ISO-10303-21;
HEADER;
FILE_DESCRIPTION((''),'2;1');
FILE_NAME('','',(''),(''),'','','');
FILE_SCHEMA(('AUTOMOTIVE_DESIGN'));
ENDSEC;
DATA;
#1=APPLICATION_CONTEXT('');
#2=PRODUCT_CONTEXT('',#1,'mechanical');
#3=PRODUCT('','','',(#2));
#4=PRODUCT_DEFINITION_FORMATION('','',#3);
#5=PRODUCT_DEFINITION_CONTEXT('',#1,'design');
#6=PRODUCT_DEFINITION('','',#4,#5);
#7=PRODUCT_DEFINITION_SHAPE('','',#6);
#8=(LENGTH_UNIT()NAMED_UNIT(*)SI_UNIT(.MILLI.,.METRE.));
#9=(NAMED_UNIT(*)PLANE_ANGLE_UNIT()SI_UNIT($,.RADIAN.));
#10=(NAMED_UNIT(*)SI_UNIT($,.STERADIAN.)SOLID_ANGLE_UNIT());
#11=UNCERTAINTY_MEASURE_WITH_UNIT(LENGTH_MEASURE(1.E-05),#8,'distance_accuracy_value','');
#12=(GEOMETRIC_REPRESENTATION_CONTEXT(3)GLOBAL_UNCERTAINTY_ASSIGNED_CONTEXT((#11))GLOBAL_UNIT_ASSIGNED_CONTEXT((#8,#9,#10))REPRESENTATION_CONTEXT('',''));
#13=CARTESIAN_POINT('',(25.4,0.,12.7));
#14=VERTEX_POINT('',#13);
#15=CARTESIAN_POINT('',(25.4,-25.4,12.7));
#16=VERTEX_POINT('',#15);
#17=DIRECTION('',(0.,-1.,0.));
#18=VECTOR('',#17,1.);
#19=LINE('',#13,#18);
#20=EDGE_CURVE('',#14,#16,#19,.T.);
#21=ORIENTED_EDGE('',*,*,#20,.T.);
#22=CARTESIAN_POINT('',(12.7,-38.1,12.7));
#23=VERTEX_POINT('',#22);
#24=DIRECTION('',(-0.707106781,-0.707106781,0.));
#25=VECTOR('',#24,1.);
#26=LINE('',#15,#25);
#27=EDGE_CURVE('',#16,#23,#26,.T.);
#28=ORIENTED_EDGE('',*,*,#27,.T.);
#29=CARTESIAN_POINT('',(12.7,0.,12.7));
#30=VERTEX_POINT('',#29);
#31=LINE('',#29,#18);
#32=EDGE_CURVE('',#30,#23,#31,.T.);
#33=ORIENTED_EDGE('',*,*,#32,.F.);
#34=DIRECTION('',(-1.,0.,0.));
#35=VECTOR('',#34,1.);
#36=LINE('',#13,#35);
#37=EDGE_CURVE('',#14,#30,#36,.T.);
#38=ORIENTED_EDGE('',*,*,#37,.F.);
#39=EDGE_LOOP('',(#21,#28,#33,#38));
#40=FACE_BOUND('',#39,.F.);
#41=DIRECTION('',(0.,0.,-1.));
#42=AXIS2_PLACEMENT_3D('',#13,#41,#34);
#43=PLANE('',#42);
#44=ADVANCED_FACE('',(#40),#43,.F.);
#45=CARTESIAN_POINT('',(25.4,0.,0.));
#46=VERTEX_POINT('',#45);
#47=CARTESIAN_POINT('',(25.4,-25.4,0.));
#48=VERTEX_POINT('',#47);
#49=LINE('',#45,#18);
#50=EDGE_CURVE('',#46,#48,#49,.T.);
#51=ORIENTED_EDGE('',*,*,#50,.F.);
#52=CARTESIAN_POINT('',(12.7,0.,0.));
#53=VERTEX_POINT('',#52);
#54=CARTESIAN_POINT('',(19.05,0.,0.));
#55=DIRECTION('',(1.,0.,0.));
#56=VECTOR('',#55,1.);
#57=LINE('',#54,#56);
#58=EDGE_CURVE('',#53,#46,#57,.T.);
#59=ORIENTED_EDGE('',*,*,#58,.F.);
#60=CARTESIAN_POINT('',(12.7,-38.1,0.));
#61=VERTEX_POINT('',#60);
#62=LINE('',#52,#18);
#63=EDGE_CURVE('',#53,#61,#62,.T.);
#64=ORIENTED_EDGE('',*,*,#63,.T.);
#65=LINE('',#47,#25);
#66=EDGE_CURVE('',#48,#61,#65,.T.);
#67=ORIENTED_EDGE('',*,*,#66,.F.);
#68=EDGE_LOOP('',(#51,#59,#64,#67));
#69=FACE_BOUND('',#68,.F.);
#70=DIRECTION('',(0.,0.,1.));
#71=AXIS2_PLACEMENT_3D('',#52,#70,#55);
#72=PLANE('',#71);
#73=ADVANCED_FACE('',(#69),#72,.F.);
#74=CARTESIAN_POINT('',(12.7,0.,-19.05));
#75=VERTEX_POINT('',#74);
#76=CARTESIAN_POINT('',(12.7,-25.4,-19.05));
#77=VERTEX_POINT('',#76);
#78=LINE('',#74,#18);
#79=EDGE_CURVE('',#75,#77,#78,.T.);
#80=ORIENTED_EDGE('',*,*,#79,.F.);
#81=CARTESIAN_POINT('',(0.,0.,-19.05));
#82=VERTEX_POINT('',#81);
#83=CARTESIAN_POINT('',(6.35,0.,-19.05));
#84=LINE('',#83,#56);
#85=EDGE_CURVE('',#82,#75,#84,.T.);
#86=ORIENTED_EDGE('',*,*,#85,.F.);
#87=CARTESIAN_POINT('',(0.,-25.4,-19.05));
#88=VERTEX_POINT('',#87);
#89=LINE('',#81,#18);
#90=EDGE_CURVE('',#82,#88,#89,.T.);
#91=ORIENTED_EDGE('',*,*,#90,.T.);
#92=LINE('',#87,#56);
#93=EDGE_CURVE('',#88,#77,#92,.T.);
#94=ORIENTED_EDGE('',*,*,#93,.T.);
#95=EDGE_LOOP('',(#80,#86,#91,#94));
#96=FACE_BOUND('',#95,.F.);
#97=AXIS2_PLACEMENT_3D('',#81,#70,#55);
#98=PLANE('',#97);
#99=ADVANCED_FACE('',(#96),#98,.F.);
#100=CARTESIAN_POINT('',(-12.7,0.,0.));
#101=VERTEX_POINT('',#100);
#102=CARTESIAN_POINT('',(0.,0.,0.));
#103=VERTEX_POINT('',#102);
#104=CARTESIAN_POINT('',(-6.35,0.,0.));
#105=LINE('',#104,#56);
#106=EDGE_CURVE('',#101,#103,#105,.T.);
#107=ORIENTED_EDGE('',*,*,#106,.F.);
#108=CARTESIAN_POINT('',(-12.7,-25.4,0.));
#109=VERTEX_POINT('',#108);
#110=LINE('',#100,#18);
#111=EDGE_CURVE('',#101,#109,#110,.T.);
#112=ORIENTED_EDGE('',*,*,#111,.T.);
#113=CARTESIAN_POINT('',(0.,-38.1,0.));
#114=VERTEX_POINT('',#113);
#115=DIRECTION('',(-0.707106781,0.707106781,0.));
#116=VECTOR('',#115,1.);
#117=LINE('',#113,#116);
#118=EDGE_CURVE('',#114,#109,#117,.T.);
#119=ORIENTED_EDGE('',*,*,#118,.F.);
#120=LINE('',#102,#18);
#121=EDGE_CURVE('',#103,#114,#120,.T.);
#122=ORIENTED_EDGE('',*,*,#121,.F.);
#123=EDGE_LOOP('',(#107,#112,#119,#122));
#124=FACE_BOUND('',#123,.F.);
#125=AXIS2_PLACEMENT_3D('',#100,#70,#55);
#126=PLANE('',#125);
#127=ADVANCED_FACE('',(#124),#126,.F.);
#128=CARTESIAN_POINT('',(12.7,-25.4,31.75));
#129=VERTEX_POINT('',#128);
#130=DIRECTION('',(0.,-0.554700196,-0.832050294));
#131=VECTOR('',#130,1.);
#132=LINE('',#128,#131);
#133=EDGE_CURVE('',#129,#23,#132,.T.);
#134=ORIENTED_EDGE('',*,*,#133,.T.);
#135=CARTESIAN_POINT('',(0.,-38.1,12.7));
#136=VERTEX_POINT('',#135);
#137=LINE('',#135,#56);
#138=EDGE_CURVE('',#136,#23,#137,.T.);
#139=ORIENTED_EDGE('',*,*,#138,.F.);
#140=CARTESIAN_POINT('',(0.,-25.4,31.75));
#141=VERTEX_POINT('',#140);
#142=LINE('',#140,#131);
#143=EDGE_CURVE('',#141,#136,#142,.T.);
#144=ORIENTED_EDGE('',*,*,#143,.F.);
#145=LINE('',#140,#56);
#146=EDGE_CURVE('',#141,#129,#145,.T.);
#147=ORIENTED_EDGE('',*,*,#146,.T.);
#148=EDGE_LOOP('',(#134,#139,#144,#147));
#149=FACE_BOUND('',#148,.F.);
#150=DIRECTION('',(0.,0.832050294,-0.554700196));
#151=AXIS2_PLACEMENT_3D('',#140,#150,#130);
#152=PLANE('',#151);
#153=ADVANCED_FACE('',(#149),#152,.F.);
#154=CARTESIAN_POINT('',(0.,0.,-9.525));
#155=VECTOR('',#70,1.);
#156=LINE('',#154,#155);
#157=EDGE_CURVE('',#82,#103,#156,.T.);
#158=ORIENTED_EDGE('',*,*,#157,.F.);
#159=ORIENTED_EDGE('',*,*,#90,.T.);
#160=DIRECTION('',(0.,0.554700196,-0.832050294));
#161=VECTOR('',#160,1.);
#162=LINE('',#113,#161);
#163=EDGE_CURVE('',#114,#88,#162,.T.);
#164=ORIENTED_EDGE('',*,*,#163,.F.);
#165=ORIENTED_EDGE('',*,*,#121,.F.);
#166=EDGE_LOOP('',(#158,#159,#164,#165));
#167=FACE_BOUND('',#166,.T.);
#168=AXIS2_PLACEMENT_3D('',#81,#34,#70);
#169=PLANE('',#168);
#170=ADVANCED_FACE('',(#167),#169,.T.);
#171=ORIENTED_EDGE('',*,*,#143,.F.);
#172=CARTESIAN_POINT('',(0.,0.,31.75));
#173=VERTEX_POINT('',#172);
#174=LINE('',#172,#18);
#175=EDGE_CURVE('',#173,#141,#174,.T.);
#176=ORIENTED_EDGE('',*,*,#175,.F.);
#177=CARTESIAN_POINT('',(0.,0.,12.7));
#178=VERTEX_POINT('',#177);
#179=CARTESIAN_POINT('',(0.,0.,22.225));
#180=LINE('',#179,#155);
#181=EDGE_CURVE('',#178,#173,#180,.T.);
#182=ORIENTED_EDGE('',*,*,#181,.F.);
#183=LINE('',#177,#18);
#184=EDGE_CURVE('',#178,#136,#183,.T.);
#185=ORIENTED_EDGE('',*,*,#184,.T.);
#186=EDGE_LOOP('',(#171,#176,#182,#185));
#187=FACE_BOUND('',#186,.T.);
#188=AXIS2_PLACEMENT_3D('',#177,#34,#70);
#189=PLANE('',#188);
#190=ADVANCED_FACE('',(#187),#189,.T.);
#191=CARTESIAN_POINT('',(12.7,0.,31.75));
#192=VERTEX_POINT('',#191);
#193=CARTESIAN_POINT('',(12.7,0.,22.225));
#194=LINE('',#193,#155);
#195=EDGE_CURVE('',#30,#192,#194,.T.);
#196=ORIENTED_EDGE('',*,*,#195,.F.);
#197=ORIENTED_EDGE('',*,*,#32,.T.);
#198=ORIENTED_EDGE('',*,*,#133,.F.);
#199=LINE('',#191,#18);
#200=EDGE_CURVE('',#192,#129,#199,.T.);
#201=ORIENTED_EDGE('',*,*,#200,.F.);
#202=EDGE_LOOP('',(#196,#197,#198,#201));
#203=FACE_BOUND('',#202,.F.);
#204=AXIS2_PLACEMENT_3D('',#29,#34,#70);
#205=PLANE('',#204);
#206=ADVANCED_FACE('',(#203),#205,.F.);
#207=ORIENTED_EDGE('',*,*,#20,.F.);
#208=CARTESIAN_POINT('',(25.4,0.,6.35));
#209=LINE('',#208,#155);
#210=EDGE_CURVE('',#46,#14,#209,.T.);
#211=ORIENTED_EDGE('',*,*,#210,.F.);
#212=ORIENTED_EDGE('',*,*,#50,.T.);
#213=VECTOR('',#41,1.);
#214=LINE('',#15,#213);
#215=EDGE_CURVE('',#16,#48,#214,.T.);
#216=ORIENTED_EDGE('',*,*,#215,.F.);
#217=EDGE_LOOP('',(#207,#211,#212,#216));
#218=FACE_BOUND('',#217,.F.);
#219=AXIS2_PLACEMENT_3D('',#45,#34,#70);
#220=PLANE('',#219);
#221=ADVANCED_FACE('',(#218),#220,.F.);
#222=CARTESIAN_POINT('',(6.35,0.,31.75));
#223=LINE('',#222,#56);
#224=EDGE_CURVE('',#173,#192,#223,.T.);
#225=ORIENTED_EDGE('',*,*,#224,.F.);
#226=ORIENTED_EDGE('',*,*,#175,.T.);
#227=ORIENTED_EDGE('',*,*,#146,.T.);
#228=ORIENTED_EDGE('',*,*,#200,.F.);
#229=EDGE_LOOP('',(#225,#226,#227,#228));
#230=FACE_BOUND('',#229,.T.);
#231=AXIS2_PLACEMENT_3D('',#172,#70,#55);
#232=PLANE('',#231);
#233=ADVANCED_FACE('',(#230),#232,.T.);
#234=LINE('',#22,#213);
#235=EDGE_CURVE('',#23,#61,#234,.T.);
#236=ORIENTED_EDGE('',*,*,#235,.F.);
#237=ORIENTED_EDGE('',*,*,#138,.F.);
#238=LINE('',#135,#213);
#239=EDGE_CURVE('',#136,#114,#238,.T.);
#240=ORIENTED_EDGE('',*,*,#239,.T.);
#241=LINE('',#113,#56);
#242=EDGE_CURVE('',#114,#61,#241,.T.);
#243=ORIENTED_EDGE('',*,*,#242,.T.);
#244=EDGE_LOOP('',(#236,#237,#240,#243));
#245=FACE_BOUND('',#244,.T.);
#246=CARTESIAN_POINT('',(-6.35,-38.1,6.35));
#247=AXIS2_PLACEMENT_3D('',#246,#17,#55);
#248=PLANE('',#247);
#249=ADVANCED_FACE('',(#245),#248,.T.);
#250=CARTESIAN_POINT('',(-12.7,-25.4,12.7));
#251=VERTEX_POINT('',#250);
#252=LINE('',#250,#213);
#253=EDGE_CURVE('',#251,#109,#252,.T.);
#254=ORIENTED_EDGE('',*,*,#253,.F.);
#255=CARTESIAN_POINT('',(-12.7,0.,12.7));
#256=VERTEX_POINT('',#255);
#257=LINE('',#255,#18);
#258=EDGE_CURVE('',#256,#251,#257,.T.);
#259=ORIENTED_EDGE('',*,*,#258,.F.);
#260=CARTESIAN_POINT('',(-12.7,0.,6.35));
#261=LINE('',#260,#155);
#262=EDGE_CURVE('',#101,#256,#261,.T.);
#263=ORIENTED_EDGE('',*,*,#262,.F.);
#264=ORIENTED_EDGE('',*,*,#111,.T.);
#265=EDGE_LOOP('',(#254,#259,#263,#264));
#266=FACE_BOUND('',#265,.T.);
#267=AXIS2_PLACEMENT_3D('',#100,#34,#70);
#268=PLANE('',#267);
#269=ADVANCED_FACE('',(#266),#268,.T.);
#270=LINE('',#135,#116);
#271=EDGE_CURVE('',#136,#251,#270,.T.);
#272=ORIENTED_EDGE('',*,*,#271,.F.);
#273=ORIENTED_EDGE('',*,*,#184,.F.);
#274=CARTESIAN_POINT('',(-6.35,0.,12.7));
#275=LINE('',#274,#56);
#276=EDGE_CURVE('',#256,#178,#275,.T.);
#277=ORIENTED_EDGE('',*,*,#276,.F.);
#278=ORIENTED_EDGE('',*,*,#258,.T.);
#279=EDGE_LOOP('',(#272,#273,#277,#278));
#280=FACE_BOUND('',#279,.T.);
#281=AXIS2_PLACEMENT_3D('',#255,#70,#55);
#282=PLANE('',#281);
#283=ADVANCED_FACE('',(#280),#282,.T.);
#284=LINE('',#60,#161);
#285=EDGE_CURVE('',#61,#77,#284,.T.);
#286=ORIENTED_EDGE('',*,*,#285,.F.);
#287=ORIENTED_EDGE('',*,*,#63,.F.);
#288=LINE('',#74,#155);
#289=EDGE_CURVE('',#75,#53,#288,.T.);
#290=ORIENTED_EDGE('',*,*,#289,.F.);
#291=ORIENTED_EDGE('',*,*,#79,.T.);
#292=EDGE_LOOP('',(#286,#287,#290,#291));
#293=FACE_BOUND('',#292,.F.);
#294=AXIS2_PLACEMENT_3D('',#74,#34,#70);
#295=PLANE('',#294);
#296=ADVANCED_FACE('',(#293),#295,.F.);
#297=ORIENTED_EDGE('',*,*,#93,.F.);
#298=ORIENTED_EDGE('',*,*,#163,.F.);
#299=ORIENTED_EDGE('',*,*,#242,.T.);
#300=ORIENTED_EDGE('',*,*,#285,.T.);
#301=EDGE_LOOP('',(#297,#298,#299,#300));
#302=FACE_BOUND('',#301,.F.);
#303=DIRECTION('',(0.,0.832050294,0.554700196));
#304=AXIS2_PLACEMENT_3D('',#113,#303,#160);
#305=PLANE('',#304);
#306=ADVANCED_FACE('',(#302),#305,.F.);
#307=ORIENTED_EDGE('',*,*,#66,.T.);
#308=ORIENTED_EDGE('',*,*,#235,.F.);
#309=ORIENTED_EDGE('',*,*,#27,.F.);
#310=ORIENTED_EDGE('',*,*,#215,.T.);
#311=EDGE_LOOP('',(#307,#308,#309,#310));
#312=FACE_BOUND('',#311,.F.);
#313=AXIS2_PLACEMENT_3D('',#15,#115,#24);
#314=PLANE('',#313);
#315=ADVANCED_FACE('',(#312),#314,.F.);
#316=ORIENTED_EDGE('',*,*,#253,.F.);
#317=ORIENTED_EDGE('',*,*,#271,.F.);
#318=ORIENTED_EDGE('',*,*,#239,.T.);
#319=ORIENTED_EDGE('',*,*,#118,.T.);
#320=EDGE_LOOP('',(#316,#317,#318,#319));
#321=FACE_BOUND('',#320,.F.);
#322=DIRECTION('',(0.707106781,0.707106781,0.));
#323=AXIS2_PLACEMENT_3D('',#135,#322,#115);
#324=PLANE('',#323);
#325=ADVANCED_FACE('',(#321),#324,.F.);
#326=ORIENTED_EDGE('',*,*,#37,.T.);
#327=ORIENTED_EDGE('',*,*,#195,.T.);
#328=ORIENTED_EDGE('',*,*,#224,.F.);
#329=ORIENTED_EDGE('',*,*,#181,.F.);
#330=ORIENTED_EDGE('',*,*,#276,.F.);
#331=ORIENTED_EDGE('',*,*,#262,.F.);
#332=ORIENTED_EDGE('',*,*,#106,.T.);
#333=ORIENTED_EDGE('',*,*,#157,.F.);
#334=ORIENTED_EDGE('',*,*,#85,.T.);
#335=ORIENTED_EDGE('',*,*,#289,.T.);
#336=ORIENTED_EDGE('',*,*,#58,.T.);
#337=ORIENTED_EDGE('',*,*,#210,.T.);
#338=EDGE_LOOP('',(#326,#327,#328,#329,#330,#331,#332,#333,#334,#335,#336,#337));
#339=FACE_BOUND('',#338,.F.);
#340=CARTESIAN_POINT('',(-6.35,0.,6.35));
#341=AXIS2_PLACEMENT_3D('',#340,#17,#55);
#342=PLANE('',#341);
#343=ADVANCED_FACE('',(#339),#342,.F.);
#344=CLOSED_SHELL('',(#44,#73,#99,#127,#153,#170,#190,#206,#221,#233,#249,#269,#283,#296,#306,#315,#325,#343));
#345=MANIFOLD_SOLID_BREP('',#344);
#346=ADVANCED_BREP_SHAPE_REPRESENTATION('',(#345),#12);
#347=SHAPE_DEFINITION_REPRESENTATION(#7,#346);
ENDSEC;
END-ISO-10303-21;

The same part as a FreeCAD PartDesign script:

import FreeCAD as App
import Part
import Sketcher
Q = App.Units.Quantity

doc = App.newDocument("Part")
body = doc.addObject("PartDesign::Body", "Body")

# Sketch on XZ plane
sketch1 = body.newObject("Sketcher::SketchObject", "Sketch")
sketch1.AttachmentSupport = (doc.getObject("XZ_Plane"), [""])
sketch1.MapMode = "FlatFace"
sketch1.addGeometry([
    Part.LineSegment(App.Vector(-13, 13, 0), App.Vector(-13, 0, 0)),
    Part.LineSegment(App.Vector(-13, 0, 0), App.Vector(0, 0, 0)),
    Part.LineSegment(App.Vector(0, 0, 0), App.Vector(0, 13, 0)),
    Part.LineSegment(App.Vector(0, 13, 0), App.Vector(-13, 13, 0)),
], False)
sketch1.addConstraint([
    Sketcher.Constraint("Coincident", 0, 2, 1, 1),
    Sketcher.Constraint("Coincident", 1, 2, 2, 1),
    Sketcher.Constraint("Coincident", 2, 2, 3, 1),
    Sketcher.Constraint("Coincident", 3, 2, 0, 1),
    Sketcher.Constraint("Vertical", 0),
    Sketcher.Constraint("Horizontal", 1),
    Sketcher.Constraint("Vertical", 2),
    Sketcher.Constraint("Horizontal", 3),
    Sketcher.Constraint("Coincident", 1, 2, -1, 1),
    Sketcher.Constraint("Equal", 3, 0),
    Sketcher.Constraint("DistanceX", 1, 1, 1, 2, Q("0.5 in")),
])
pad1 = body.newObject("PartDesign::Pad", "Pad")
pad1.Profile = sketch1
pad1.Length = Q("1.5 in")

# Sketch on XZ plane
sketch2 = body.newObject("Sketcher::SketchObject", "Sketch001")
sketch2.AttachmentSupport = (doc.getObject("XZ_Plane"), [""])
sketch2.MapMode = "FlatFace"
sketch2.addGeometry([
    Part.LineSegment(App.Vector(-13, 13, 0), App.Vector(-13, 0, 0)),  # 0
    Part.LineSegment(App.Vector(-13, 0, 0), App.Vector(0, 0, 0)),  # 1
    Part.LineSegment(App.Vector(0, 0, 0), App.Vector(0, -19, 0)),  # 2
    Part.LineSegment(App.Vector(0, -19, 0), App.Vector(13, -19, 0)),  # 3
    Part.LineSegment(App.Vector(13, -19, 0), App.Vector(13, 0, 0)),  # 4
    Part.LineSegment(App.Vector(13, 0, 0), App.Vector(25, 0, 0)),  # 5
    Part.LineSegment(App.Vector(25, 0, 0), App.Vector(25, 13, 0)),  # 6
    Part.LineSegment(App.Vector(25, 13, 0), App.Vector(13, 13, 0)),  # 7
    Part.LineSegment(App.Vector(13, 13, 0), App.Vector(13, 32, 0)),  # 8
    Part.LineSegment(App.Vector(13, 32, 0), App.Vector(0, 32, 0)),  # 9
    Part.LineSegment(App.Vector(0, 32, 0), App.Vector(0, 13, 0)),  # 10
    Part.LineSegment(App.Vector(0, 13, 0), App.Vector(-13, 13, 0)),  # 11
], False)
sketch2.addConstraint([
    Sketcher.Constraint("Coincident", 0, 2, 1, 1),
    Sketcher.Constraint("Coincident", 1, 2, 2, 1),
    Sketcher.Constraint("Coincident", 2, 2, 3, 1),
    Sketcher.Constraint("Coincident", 3, 2, 4, 1),
    Sketcher.Constraint("Coincident", 4, 2, 5, 1),
    Sketcher.Constraint("Coincident", 5, 2, 6, 1),
    Sketcher.Constraint("Coincident", 6, 2, 7, 1),
    Sketcher.Constraint("Coincident", 7, 2, 8, 1),
    Sketcher.Constraint("Coincident", 8, 2, 9, 1),
    Sketcher.Constraint("Coincident", 9, 2, 10, 1),
    Sketcher.Constraint("Coincident", 10, 2, 11, 1),
    Sketcher.Constraint("Coincident", 11, 2, 0, 1),
    Sketcher.Constraint("Vertical", 0),
    Sketcher.Constraint("Horizontal", 1),
    Sketcher.Constraint("Vertical", 2),
    Sketcher.Constraint("Horizontal", 3),
    Sketcher.Constraint("Vertical", 4),
    Sketcher.Constraint("Horizontal", 5),
    Sketcher.Constraint("Vertical", 6),
    Sketcher.Constraint("Horizontal", 7),
    Sketcher.Constraint("Vertical", 8),
    Sketcher.Constraint("Horizontal", 9),
    Sketcher.Constraint("Vertical", 10),
    Sketcher.Constraint("Horizontal", 11),
    Sketcher.Constraint("Coincident", 1, 2, -1, 1),
    Sketcher.Constraint("Symmetric", 0, 2, 4, 2, -1, 1),
    Sketcher.Constraint("Symmetric", 7, 2, 11, 2, -2),
    Sketcher.Constraint("PointOnObject", 9, 2, -2),
    Sketcher.Constraint("Equal", 3, 5),
    Sketcher.Constraint("Equal", 11, 0),
    Sketcher.Constraint("Equal", 4, 8),
    Sketcher.Constraint("DistanceX", 1, 1, 1, 2, Q("0.5 in")),
    Sketcher.Constraint("DistanceY", 2, 2, 2, 1, Q("0.75 in")),
])
pad2 = body.newObject("PartDesign::Pad", "Pad001")
pad2.Profile = sketch2
pad2.Length = Q("1.5 in")

# Sketch on XY plane
sketch3 = body.newObject("Sketcher::SketchObject", "Sketch002")
sketch3.AttachmentSupport = (doc.getObject("XY_Plane"), [""])
sketch3.MapMode = "FlatFace"
sketch3.AttachmentOffset = App.Placement(App.Vector(0, 0, 0.5 * 25.4), App.Rotation())
sketch3.addGeometry([
    Part.LineSegment(App.Vector(0, -38, 0), App.Vector(-13, -25, 0)),
    Part.LineSegment(App.Vector(-13, -25, 0), App.Vector(-13, -38, 0)),
    Part.LineSegment(App.Vector(-13, -38, 0), App.Vector(0, -38, 0)),
], False)
sketch3.addConstraint([
    Sketcher.Constraint("Coincident", 0, 2, 1, 1),
    Sketcher.Constraint("Coincident", 1, 2, 2, 1),
    Sketcher.Constraint("Coincident", 2, 2, 0, 1),
    Sketcher.Constraint("Vertical", 1),
    Sketcher.Constraint("Horizontal", 2),
    Sketcher.Constraint("PointOnObject", 2, 2, -2),
    Sketcher.Constraint("Equal", 2, 1),
    Sketcher.Constraint("DistanceX", 2, 1, 2, 2, Q("0.5 in")),
    Sketcher.Constraint("DistanceY", 0, 2, -1, 1, Q("1 in")),
])
pocket1 = body.newObject("PartDesign::Pocket", "Pocket")
pocket1.Profile = sketch3
pocket1.Length = Q("0.5 in")

# Sketch on XY plane
sketch4 = body.newObject("Sketcher::SketchObject", "Sketch003")
sketch4.AttachmentSupport = (doc.getObject("XY_Plane"), [""])
sketch4.MapMode = "FlatFace"
sketch4.AttachmentOffset = App.Placement(App.Vector(0, 0, 0.5 * 25.4), App.Rotation())
sketch4.addGeometry([
    Part.LineSegment(App.Vector(25, -25, 0), App.Vector(13, -38, 0)),
    Part.LineSegment(App.Vector(13, -38, 0), App.Vector(25, -38, 0)),
    Part.LineSegment(App.Vector(25, -38, 0), App.Vector(25, -25, 0)),
], False)
sketch4.addConstraint([
    Sketcher.Constraint("Coincident", 0, 2, 1, 1),
    Sketcher.Constraint("Coincident", 1, 2, 2, 1),
    Sketcher.Constraint("Coincident", 2, 2, 0, 1),
    Sketcher.Constraint("Horizontal", 1),
    Sketcher.Constraint("Vertical", 2),
    Sketcher.Constraint("Equal", 1, 2),
    Sketcher.Constraint("DistanceX", 1, 1, 1, 2, Q("0.5 in")),
    Sketcher.Constraint("DistanceX", -1, 1, 1, 2, Q("1 in")),
    Sketcher.Constraint("DistanceY", 2, 2, -1, 1, Q("1 in")),
])
pocket2 = body.newObject("PartDesign::Pocket", "Pocket001")
pocket2.Profile = sketch4
pocket2.Length = Q("0.5 in")

# Sketch on YZ plane
sketch5 = body.newObject("Sketcher::SketchObject", "Sketch004")
sketch5.AttachmentSupport = (doc.getObject("YZ_Plane"), [""])
sketch5.MapMode = "FlatFace"
sketch5.addGeometry([
    Part.LineSegment(App.Vector(-38, 32, 0), App.Vector(-25, 32, 0)),
    Part.LineSegment(App.Vector(-25, 32, 0), App.Vector(-38, 13, 0)),
    Part.LineSegment(App.Vector(-38, 13, 0), App.Vector(-38, 32, 0)),
], False)
sketch5.addConstraint([
    Sketcher.Constraint("Coincident", 0, 2, 1, 1),
    Sketcher.Constraint("Coincident", 1, 2, 2, 1),
    Sketcher.Constraint("Coincident", 2, 2, 0, 1),
    Sketcher.Constraint("Horizontal", 0),
    Sketcher.Constraint("Vertical", 2),
    Sketcher.Constraint("DistanceX", 0, 1, 0, 2, Q("0.5 in")),
    Sketcher.Constraint("DistanceX", 0, 2, -1, 1, Q("1 in")),
    Sketcher.Constraint("DistanceY", 2, 1, 2, 2, Q("0.75 in")),
    Sketcher.Constraint("DistanceY", -1, 1, 1, 2, Q("0.5 in")),
])
pocket3 = body.newObject("PartDesign::Pocket", "Pocket002")
pocket3.Profile = sketch5
pocket3.Length = Q("0.5 in")
pocket3.Reversed = True

# Sketch on YZ plane
sketch6 = body.newObject("Sketcher::SketchObject", "Sketch005")
sketch6.AttachmentSupport = (doc.getObject("YZ_Plane"), [""])
sketch6.MapMode = "FlatFace"
sketch6.addGeometry([
    Part.LineSegment(App.Vector(-38, -19, 0), App.Vector(-38, 0, 0)),
    Part.LineSegment(App.Vector(-38, 0, 0), App.Vector(-25, -19, 0)),
    Part.LineSegment(App.Vector(-25, -19, 0), App.Vector(-38, -19, 0)),
], False)
sketch6.addConstraint([
    Sketcher.Constraint("Coincident", 0, 2, 1, 1),
    Sketcher.Constraint("Coincident", 1, 2, 2, 1),
    Sketcher.Constraint("Coincident", 2, 2, 0, 1),
    Sketcher.Constraint("Vertical", 0),
    Sketcher.Constraint("Horizontal", 2),
    Sketcher.Constraint("PointOnObject", 0, 2, -1),
    Sketcher.Constraint("DistanceX", 2, 2, 2, 1, Q("0.5 in")),
    Sketcher.Constraint("DistanceX", 1, 2, -1, 1, Q("1 in")),
    Sketcher.Constraint("DistanceY", 0, 1, 0, 2, Q("0.75 in")),
])
pocket4 = body.newObject("PartDesign::Pocket", "Pocket003")
pocket4.Profile = sketch6
pocket4.Length = Q("0.5 in")
pocket4.Reversed = True

doc.recompute()
